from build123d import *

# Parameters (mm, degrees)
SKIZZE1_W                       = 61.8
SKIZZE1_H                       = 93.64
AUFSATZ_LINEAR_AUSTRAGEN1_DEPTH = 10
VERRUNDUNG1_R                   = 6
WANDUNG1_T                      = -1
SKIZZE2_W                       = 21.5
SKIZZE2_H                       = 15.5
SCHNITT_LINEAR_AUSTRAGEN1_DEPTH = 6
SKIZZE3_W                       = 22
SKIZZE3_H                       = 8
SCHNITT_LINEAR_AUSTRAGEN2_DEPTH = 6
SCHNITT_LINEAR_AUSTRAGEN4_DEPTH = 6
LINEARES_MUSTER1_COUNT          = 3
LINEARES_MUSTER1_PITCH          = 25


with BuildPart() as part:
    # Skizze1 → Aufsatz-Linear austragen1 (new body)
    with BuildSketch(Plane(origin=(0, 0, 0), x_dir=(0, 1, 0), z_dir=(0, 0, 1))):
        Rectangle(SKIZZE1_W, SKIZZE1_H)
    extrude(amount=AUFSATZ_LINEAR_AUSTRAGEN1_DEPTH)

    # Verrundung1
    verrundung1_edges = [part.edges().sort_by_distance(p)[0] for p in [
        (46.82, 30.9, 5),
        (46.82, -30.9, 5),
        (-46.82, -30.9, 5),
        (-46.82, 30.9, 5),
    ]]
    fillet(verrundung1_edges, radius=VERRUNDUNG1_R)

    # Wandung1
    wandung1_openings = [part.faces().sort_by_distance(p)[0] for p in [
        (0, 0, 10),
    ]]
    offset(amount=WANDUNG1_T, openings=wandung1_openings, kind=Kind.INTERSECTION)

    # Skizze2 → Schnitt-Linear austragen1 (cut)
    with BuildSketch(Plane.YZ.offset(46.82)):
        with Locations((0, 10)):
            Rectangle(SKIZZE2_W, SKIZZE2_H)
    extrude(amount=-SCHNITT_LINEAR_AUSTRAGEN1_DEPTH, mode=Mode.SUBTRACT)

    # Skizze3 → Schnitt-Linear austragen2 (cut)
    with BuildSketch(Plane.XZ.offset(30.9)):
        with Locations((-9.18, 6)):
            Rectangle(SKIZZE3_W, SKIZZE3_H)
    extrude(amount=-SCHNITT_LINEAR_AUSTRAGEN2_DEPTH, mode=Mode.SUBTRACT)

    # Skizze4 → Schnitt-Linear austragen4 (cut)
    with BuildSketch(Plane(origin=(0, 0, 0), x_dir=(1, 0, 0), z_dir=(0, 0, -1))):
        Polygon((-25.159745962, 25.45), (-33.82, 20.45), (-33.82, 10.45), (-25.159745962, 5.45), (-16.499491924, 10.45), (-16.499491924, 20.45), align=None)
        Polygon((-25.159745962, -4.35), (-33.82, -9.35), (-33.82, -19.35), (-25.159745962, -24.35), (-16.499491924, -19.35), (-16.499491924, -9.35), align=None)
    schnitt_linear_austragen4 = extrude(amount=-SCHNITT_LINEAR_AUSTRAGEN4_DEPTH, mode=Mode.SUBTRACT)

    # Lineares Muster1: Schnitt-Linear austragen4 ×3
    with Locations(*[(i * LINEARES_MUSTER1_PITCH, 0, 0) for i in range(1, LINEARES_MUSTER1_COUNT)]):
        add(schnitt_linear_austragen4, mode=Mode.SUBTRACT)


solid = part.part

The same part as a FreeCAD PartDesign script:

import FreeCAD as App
import Part
import Sketcher
Q = App.Units.Quantity


def edges_at(feature, points):
    """Names of the edges that pass closest to the given points."""
    edges = feature.Shape.Edges
    near = lambda p: min(range(len(edges)), key=lambda i: edges[i].distToShape(Part.Vertex(*p))[0])
    return sorted({f"Edge{near(p) + 1}" for p in points})


def faces_at(feature, points):
    """Names of the faces that lie closest to the given points."""
    faces = feature.Shape.Faces
    near = lambda p: min(range(len(faces)), key=lambda i: faces[i].distToShape(Part.Vertex(*p))[0])
    return sorted({f"Face{near(p) + 1}" for p in points})


def add_polygon(sketch, points):
    """Adds a closed chain of lines whose ends are joined by coincident constraints."""
    first, n = sketch.GeometryCount, len(points)
    for a, b in zip(points, points[1:] + points[:1]):
        sketch.addGeometry(Part.LineSegment(App.Vector(*a, 0), App.Vector(*b, 0)), False)
    for i in range(n):
        sketch.addConstraint(Sketcher.Constraint("Coincident", first + i, 2, first + (i + 1) % n, 1))

doc = App.newDocument("Part")
params = doc.addObject("Spreadsheet::Sheet", "Params")
for row, (alias, value) in enumerate([
    ("sketch1_height", "61.8 mm"),
    ("sketch1_width", "93.64 mm"),
    ("pad1_length", "10 mm"),
    ("fillet_radius", "6 mm"),
    ("thickness_wall", "1 mm"),
    ("sketch2_width", "21.5 mm"),
    ("sketch2_height", "15.5 mm"),
    ("pocket1_length", "6 mm"),
    ("sketch3_width", "22 mm"),
    ("sketch3_height", "8 mm"),
    ("pocket2_length", "6 mm"),
    ("sketch4_height", "10 mm"),
    ("sketch4_length", "10 mm"),
    ("pocket3_length", "6 mm"),
    ("linearpattern_pitch", "25 mm"),
], start=1):
    params.set(f"A{row}", alias)
    params.set(f"B{row}", "=" + value)
    params.setAlias(f"B{row}", alias)

body = doc.addObject("PartDesign::Body", "Body")

# Sketch on XY plane
sketch1 = doc.addObject("Sketcher::SketchObject", "Sketch")
body.addObject(sketch1)
sketch1.AttachmentSupport = (doc.XY_Plane, [""])
sketch1.MapMode = "FlatFace"
add_polygon(sketch1, [(-47, -31), (47, -31), (47, 31), (-47, 31)])  # lines 0-3
sketch1.addConstraint([
    Sketcher.Constraint("Horizontal", 0),
    Sketcher.Constraint("Vertical", 1),
    Sketcher.Constraint("Horizontal", 2),
    Sketcher.Constraint("Vertical", 3),
    Sketcher.Constraint("Symmetric", 0, 2, 2, 2, -1, 1),
    Sketcher.Constraint("DistanceY", 1, 1, 1, 2, 61.8),
    Sketcher.Constraint("DistanceX", 0, 1, 0, 2, 93.64),
])
sketch1.setExpression("Constraints[9]", "Params.sketch1_height")
sketch1.setExpression("Constraints[10]", "Params.sketch1_width")
pad1 = doc.addObject("PartDesign::Pad", "Pad")
body.addObject(pad1)
pad1.Profile = sketch1
pad1.setExpression("Length", "Params.pad1_length")
doc.recompute()

fillet = doc.addObject("PartDesign::Fillet", "Fillet")
body.addObject(fillet)
fillet.Base = (pad1, edges_at(pad1, [
    (46.82, 30.9, 5),
    (46.82, -30.9, 5),
    (-46.82, -30.9, 5),
    (-46.82, 30.9, 5),
]))
fillet.setExpression("Radius", "Params.fillet_radius")
doc.recompute()

thickness = doc.addObject("PartDesign::Thickness", "Thickness")
body.addObject(thickness)
thickness.Base = (fillet, faces_at(fillet, [(0, 0, 10)]))
thickness.setExpression("Value", "Params.thickness_wall")
thickness.Reversed = True
thickness.Join = "Intersection"

# Sketch on YZ plane
sketch2 = doc.addObject("Sketcher::SketchObject", "Sketch001")
body.addObject(sketch2)
sketch2.AttachmentSupport = (doc.YZ_Plane, [""])
sketch2.MapMode = "FlatFace"
sketch2.AttachmentOffset = App.Placement(App.Vector(0, 0, 46.82), App.Rotation())
add_polygon(sketch2, [(-11, 18), (-11, 2), (11, 2), (11, 18)])  # lines 0-3
sketch2.addConstraint([
    Sketcher.Constraint("Vertical", 0),
    Sketcher.Constraint("Horizontal", 1),
    Sketcher.Constraint("Vertical", 2),
    Sketcher.Constraint("Horizontal", 3),
    Sketcher.Constraint("DistanceX", 1, 1, 1, 2, 21.5),
    Sketcher.Constraint("DistanceY", 0, 2, 0, 1, 15.5),
    Sketcher.Constraint("DistanceX", 0, 2, -1, 1, 10.75),
    Sketcher.Constraint("DistanceY", -1, 1, 0, 2, 2.25),
])
sketch2.setExpression("Constraints[8]", "Params.sketch2_width")
sketch2.setExpression("Constraints[9]", "Params.sketch2_height")
pocket1 = doc.addObject("PartDesign::Pocket", "Pocket")
body.addObject(pocket1)
pocket1.Profile = sketch2
pocket1.setExpression("Length", "Params.pocket1_length")

# Sketch on XZ plane
sketch3 = doc.addObject("Sketcher::SketchObject", "Sketch002")
body.addObject(sketch3)
sketch3.AttachmentSupport = (doc.XZ_Plane, [""])
sketch3.MapMode = "FlatFace"
sketch3.AttachmentOffset = App.Placement(App.Vector(0, 0, 30.9), App.Rotation())
add_polygon(sketch3, [(-20, 10), (-20, 2), (2, 2), (2, 10)])  # lines 0-3
sketch3.addConstraint([
    Sketcher.Constraint("Vertical", 0),
    Sketcher.Constraint("Horizontal", 1),
    Sketcher.Constraint("Vertical", 2),
    Sketcher.Constraint("Horizontal", 3),
    Sketcher.Constraint("DistanceX", 1, 1, 1, 2, 22.0),
    Sketcher.Constraint("DistanceY", 0, 2, 0, 1, 8.0),
    Sketcher.Constraint("DistanceY", -1, 1, 0, 2, 2.0),
    Sketcher.Constraint("DistanceX", 0, 2, -1, 1, 20.18),
])
sketch3.setExpression("Constraints[8]", "Params.sketch3_width")
sketch3.setExpression("Constraints[9]", "Params.sketch3_height")
pocket2 = doc.addObject("PartDesign::Pocket", "Pocket001")
body.addObject(pocket2)
pocket2.Profile = sketch3
pocket2.setExpression("Length", "Params.pocket2_length")

# Sketch on XY plane
sketch4 = doc.addObject("Sketcher::SketchObject", "Sketch003")
body.addObject(sketch4)
sketch4.AttachmentSupport = (doc.XY_Plane, [""])
sketch4.MapMode = "FlatFace"
add_polygon(sketch4, [(-25, -25), (-34, -20), (-34, -10), (-25, -5), (-16, -10), (-16, -20)])  # lines 0-5
add_polygon(sketch4, [(-25, 4), (-34, 9), (-34, 19), (-25, 24), (-16, 19), (-16, 9)])  # lines 6-11
sketch4.addConstraint([
    Sketcher.Constraint("Vertical", 1),
    Sketcher.Constraint("Vertical", 4),
    Sketcher.Constraint("Vertical", 7),
    Sketcher.Constraint("Vertical", 10),
    Sketcher.Constraint("Parallel", 0, 3),
    Sketcher.Constraint("Parallel", 2, 5),
    Sketcher.Constraint("Parallel", 3, 6),
    Sketcher.Constraint("Parallel", 5, 8),
    Sketcher.Constraint("Parallel", 6, 9),
    Sketcher.Constraint("Parallel", 8, 11),
    Sketcher.Constraint("Horizontal", 1, 2, 3, 2),
    Sketcher.Constraint("Horizontal", 0, 2, 4, 2),
    Sketcher.Constraint("Horizontal", 7, 2, 9, 2),
    Sketcher.Constraint("Horizontal", 6, 2, 10, 2),
    Sketcher.Constraint("Vertical", 2, 2, 5, 2),
    Sketcher.Constraint("Vertical", 1, 2, 6, 2),
    Sketcher.Constraint("Vertical", 5, 2, 8, 2),
    Sketcher.Constraint("Equal", 4, 7),
    Sketcher.Constraint("DistanceY", 1, 1, 1, 2, 10.0),
    Sketcher.Constraint("Angle", 0, Q("150 deg")),
    Sketcher.Constraint("Distance", 0, 10.0),
    Sketcher.Constraint("DistanceY", 2, 2, 6, 2, 14.8),
    Sketcher.Constraint("DistanceX", 0, 2, -1, 1, 33.82),
    Sketcher.Constraint("DistanceY", 0, 2, -1, 1, 20.45),
])
sketch4.setExpression("Constraints[30]", "Params.sketch4_height")
sketch4.setExpression("Constraints[32]", "Params.sketch4_length")
pocket3 = doc.addObject("PartDesign::Pocket", "Pocket002")
body.addObject(pocket3)
pocket3.Profile = sketch4
pocket3.setExpression("Length", "Params.pocket3_length")
pocket3.Reversed = True
doc.recompute()

linearpattern = doc.addObject("PartDesign::LinearPattern", "LinearPattern")
body.addObject(linearpattern)
linearpattern.Originals = [pocket3]
linearpattern.Direction = (doc.X_Axis, [""])
linearpattern.Mode = "offset"
linearpattern.setExpression("Offset", "Params.linearpattern_pitch")
linearpattern.Occurrences = 3
body.Tip = linearpattern

doc.recompute()
